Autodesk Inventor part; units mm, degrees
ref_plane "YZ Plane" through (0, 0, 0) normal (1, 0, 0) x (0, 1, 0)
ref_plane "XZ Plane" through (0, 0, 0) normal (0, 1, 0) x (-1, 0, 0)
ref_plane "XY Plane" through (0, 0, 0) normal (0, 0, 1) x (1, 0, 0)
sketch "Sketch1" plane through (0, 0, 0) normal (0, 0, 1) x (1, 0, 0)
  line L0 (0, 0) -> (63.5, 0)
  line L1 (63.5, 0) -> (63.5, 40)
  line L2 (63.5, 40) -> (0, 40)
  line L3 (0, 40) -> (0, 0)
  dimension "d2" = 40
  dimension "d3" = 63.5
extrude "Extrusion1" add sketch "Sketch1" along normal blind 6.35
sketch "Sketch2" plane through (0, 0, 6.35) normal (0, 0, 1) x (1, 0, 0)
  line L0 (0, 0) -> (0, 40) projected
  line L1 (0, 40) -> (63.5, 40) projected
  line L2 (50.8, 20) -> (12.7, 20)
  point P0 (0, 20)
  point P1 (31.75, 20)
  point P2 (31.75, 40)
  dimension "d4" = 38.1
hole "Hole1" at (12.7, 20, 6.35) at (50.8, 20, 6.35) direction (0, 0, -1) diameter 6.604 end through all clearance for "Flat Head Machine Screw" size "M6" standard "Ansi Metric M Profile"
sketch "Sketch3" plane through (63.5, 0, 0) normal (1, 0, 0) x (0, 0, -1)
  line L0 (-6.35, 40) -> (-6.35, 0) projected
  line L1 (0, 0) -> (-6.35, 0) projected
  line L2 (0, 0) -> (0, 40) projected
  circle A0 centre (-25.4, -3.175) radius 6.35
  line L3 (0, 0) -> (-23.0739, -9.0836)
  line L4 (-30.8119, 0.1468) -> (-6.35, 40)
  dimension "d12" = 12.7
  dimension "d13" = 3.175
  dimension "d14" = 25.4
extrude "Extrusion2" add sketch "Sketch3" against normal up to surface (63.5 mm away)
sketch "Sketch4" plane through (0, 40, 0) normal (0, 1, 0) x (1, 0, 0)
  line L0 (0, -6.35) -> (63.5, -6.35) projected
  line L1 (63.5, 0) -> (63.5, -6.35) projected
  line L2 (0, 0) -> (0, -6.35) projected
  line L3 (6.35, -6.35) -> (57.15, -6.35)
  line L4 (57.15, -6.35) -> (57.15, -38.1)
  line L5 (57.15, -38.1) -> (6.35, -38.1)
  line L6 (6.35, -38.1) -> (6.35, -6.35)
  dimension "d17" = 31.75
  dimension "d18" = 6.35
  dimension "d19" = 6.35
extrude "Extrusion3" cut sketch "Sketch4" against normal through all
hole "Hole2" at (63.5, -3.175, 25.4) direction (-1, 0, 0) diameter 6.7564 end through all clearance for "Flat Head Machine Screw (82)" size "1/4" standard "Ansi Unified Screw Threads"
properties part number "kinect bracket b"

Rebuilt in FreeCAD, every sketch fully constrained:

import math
import FreeCAD as App
import Part
import Sketcher
from FreeCAD import Vector
Q = App.Units.Quantity

doc = App.newDocument("Part")
params = doc.addObject("Spreadsheet::Sheet", "Params")
for row, (alias, value) in enumerate([
    ("sketch1_width", "2.5 in"),
    ("pad1_length", "0.25 in"),
    ("sketch2_diameter", "0.26 in"),
    ("hole_diameter", "0.26 in"),
    ("sketch3_radius", "0.25 in"),
    ("sketch3_height", "0.25 in"),
    ("pad2_length", "2.5 in"),
    ("sketch4_height", "1.25 in"),
    ("sketch4_width", "2 in"),
    ("sketch5_diameter", "0.266 in"),
    ("hole2_diameter", "0.266 in"),
], start=1):
    params.set(f"A{row}", alias)
    params.set(f"B{row}", "=" + value)
    params.setAlias(f"B{row}", alias)

body = doc.addObject("PartDesign::Body", "Body")

sketch1 = body.newObject("Sketcher::SketchObject", "Sketch")
sketch1.AttachmentSupport = (doc.getObject("XY_Plane"), [""])
sketch1.MapMode = "FlatFace"
sketch1.addGeometry([
    Part.LineSegment(Vector(0, 40, 0), Vector(0, 0, 0)),
    Part.LineSegment(Vector(0, 0, 0), Vector(64, 0, 0)),
    Part.LineSegment(Vector(64, 0, 0), Vector(64, 40, 0)),
    Part.LineSegment(Vector(64, 40, 0), Vector(0, 40, 0)),
], False)
sketch1.addConstraint([
    Sketcher.Constraint("Coincident", 0, 2, 1, 1),
    Sketcher.Constraint("Coincident", 1, 2, 2, 1),
    Sketcher.Constraint("Coincident", 2, 2, 3, 1),
    Sketcher.Constraint("Coincident", 3, 2, 0, 1),
    Sketcher.Constraint("Vertical", 0),
    Sketcher.Constraint("Horizontal", 1),
    Sketcher.Constraint("Vertical", 2),
    Sketcher.Constraint("Horizontal", 3),
    Sketcher.Constraint("Coincident", 0, 2, -1, 1),
    Sketcher.Constraint("DistanceX", 1, 1, 1, 2, Q("2.5 in")),
    Sketcher.Constraint("DistanceY", 0, 2, 0, 1, Q("1.5748 in")),
])
sketch1.setExpression("Constraints[9]", "Params.sketch1_width")
pad1 = body.newObject("PartDesign::Pad", "Pad")
pad1.Profile = sketch1
pad1.setExpression("Length", "Params.pad1_length")

sketch2 = body.newObject("Sketcher::SketchObject", "Sketch001")
sketch2.AttachmentSupport = (doc.getObject("XY_Plane"), [""])
sketch2.MapMode = "FlatFace"
sketch2.AttachmentOffset = App.Placement(Vector(0, 0, 0.25 * 25.4), App.Rotation())
sketch2.addGeometry([
    Part.Circle(Vector(12.7, 20, 0), Vector(0, 0, 1), 3.3),
    Part.Circle(Vector(50.8, 20, 0), Vector(0, 0, 1), 3.3),
], False)
sketch2.addConstraint([
    Sketcher.Constraint("Equal", 0, 1),
    Sketcher.Constraint("Horizontal", 0, 3, 1, 3),
    Sketcher.Constraint("Diameter", 0, Q("0.26 in")),
    Sketcher.Constraint("DistanceX", -1, 1, 1, 3, Q("2 in")),
    Sketcher.Constraint("DistanceX", -1, 1, 0, 3, Q("0.5 in")),
    Sketcher.Constraint("DistanceY", -1, 1, 0, 3, Q("0.7874 in")),
])
sketch2.setExpression("Constraints[2]", "Params.sketch2_diameter")
doc.recompute()
hole = body.newObject("PartDesign::Hole", "Hole")
hole.Profile = sketch2
hole.ThreadType = "None"
hole.setExpression("Diameter", "Params.hole_diameter")
hole.DepthType = "ThroughAll"

sketch3 = body.newObject("Sketcher::SketchObject", "Sketch002")
sketch3.AttachmentSupport = (doc.getObject("YZ_Plane"), [""])
sketch3.MapMode = "FlatFace"
sketch3.AttachmentOffset = App.Placement(Vector(0, 0, 2.5 * 25.4), App.Rotation())
sketch3.addGeometry([
    Part.LineSegment(Vector(0, 6, 0), Vector(40, 6, 0)),
    Part.LineSegment(Vector(40, 6, 0), Vector(0, 31, 0)),
    Part.ArcOfCircle(Part.Circle(Vector(-3, 25, 0), Vector(0, 0, 1), 6), math.radians(58), math.radians(201)),
    Part.LineSegment(Vector(-9, 23, 0), Vector(0, 0, 0)),
    Part.LineSegment(Vector(0, 0, 0), Vector(0, 6, 0)),
], False)
sketch3.addConstraint([
    Sketcher.Constraint("Coincident", 0, 2, 1, 1),
    Sketcher.Constraint("Tangent", 1, 2, 2, 1),
    Sketcher.Constraint("Tangent", 2, 2, 3, 1),
    Sketcher.Constraint("Coincident", 3, 2, 4, 1),
    Sketcher.Constraint("Coincident", 4, 2, 0, 1),
    Sketcher.Constraint("Horizontal", 0),
    Sketcher.Constraint("Vertical", 4),
    Sketcher.Constraint("Coincident", 3, 2, -1, 1),
    Sketcher.Constraint("Radius", 2, Q("0.25 in")),
    Sketcher.Constraint("DistanceY", -1, 1, 2, 3, Q("1 in")),
    Sketcher.Constraint("DistanceX", 2, 3, -1, 1, Q("0.125 in")),
    Sketcher.Constraint("DistanceY", 4, 1, 4, 2, Q("0.25 in")),
    Sketcher.Constraint("DistanceX", 0, 1, 0, 2, Q("1.5748 in")),
])
sketch3.setExpression("Constraints[8]", "Params.sketch3_radius")
sketch3.setExpression("Constraints[11]", "Params.sketch3_height")
pad2 = body.newObject("PartDesign::Pad", "Pad001")
pad2.Profile = sketch3
pad2.setExpression("Length", "Params.pad2_length")
pad2.Reversed = True

sketch4 = body.newObject("Sketcher::SketchObject", "Sketch003")
sketch4.AttachmentSupport = (doc.getObject("XZ_Plane"), [""])
sketch4.MapMode = "FlatFace"
sketch4.AttachmentOffset = App.Placement(Vector(0, 0, -1.5748031 * 25.4), App.Rotation())
sketch4.addGeometry([
    Part.LineSegment(Vector(57, 6, 0), Vector(6, 6, 0)),
    Part.LineSegment(Vector(6, 6, 0), Vector(6, 38, 0)),
    Part.LineSegment(Vector(6, 38, 0), Vector(57, 38, 0)),
    Part.LineSegment(Vector(57, 38, 0), Vector(57, 6, 0)),
], False)
sketch4.addConstraint([
    Sketcher.Constraint("Coincident", 0, 2, 1, 1),
    Sketcher.Constraint("Coincident", 1, 2, 2, 1),
    Sketcher.Constraint("Coincident", 2, 2, 3, 1),
    Sketcher.Constraint("Coincident", 3, 2, 0, 1),
    Sketcher.Constraint("Horizontal", 0),
    Sketcher.Constraint("Vertical", 1),
    Sketcher.Constraint("Horizontal", 2),
    Sketcher.Constraint("Vertical", 3),
    Sketcher.Constraint("DistanceY", 1, 1, 1, 2, Q("1.25 in")),
    Sketcher.Constraint("DistanceX", 0, 2, 0, 1, Q("2 in")),
    Sketcher.Constraint("DistanceX", -1, 1, 0, 2, Q("0.25 in")),
    Sketcher.Constraint("DistanceY", -1, 1, 0, 2, Q("0.25 in")),
])
sketch4.setExpression("Constraints[8]", "Params.sketch4_height")
sketch4.setExpression("Constraints[9]", "Params.sketch4_width")
pocket1 = body.newObject("PartDesign::Pocket", "Pocket")
pocket1.Profile = sketch4
pocket1.Type = "ThroughAll"
pocket1.Reversed = True

sketch5 = body.newObject("Sketcher::SketchObject", "Sketch004")
sketch5.AttachmentSupport = (doc.getObject("YZ_Plane"), [""])
sketch5.MapMode = "FlatFace"
sketch5.AttachmentOffset = App.Placement(Vector(0, 0, 2.5 * 25.4), App.Rotation())
sketch5.addGeometry(Part.Circle(Vector(-3.2, 25.4, 0), Vector(0, 0, 1), 3.4), False)
sketch5.addConstraint([
    Sketcher.Constraint("Diameter", 0, Q("0.266 in")),
    Sketcher.Constraint("DistanceY", -1, 1, 0, 3, Q("1 in")),
    Sketcher.Constraint("DistanceX", 0, 3, -1, 1, Q("0.125 in")),
])
sketch5.setExpression("Constraints[0]", "Params.sketch5_diameter")
doc.recompute()
hole2 = body.newObject("PartDesign::Hole", "Hole001")
hole2.Profile = sketch5
hole2.ThreadType = "None"
hole2.setExpression("Diameter", "Params.hole2_diameter")
hole2.DepthType = "ThroughAll"

doc.recompute()
